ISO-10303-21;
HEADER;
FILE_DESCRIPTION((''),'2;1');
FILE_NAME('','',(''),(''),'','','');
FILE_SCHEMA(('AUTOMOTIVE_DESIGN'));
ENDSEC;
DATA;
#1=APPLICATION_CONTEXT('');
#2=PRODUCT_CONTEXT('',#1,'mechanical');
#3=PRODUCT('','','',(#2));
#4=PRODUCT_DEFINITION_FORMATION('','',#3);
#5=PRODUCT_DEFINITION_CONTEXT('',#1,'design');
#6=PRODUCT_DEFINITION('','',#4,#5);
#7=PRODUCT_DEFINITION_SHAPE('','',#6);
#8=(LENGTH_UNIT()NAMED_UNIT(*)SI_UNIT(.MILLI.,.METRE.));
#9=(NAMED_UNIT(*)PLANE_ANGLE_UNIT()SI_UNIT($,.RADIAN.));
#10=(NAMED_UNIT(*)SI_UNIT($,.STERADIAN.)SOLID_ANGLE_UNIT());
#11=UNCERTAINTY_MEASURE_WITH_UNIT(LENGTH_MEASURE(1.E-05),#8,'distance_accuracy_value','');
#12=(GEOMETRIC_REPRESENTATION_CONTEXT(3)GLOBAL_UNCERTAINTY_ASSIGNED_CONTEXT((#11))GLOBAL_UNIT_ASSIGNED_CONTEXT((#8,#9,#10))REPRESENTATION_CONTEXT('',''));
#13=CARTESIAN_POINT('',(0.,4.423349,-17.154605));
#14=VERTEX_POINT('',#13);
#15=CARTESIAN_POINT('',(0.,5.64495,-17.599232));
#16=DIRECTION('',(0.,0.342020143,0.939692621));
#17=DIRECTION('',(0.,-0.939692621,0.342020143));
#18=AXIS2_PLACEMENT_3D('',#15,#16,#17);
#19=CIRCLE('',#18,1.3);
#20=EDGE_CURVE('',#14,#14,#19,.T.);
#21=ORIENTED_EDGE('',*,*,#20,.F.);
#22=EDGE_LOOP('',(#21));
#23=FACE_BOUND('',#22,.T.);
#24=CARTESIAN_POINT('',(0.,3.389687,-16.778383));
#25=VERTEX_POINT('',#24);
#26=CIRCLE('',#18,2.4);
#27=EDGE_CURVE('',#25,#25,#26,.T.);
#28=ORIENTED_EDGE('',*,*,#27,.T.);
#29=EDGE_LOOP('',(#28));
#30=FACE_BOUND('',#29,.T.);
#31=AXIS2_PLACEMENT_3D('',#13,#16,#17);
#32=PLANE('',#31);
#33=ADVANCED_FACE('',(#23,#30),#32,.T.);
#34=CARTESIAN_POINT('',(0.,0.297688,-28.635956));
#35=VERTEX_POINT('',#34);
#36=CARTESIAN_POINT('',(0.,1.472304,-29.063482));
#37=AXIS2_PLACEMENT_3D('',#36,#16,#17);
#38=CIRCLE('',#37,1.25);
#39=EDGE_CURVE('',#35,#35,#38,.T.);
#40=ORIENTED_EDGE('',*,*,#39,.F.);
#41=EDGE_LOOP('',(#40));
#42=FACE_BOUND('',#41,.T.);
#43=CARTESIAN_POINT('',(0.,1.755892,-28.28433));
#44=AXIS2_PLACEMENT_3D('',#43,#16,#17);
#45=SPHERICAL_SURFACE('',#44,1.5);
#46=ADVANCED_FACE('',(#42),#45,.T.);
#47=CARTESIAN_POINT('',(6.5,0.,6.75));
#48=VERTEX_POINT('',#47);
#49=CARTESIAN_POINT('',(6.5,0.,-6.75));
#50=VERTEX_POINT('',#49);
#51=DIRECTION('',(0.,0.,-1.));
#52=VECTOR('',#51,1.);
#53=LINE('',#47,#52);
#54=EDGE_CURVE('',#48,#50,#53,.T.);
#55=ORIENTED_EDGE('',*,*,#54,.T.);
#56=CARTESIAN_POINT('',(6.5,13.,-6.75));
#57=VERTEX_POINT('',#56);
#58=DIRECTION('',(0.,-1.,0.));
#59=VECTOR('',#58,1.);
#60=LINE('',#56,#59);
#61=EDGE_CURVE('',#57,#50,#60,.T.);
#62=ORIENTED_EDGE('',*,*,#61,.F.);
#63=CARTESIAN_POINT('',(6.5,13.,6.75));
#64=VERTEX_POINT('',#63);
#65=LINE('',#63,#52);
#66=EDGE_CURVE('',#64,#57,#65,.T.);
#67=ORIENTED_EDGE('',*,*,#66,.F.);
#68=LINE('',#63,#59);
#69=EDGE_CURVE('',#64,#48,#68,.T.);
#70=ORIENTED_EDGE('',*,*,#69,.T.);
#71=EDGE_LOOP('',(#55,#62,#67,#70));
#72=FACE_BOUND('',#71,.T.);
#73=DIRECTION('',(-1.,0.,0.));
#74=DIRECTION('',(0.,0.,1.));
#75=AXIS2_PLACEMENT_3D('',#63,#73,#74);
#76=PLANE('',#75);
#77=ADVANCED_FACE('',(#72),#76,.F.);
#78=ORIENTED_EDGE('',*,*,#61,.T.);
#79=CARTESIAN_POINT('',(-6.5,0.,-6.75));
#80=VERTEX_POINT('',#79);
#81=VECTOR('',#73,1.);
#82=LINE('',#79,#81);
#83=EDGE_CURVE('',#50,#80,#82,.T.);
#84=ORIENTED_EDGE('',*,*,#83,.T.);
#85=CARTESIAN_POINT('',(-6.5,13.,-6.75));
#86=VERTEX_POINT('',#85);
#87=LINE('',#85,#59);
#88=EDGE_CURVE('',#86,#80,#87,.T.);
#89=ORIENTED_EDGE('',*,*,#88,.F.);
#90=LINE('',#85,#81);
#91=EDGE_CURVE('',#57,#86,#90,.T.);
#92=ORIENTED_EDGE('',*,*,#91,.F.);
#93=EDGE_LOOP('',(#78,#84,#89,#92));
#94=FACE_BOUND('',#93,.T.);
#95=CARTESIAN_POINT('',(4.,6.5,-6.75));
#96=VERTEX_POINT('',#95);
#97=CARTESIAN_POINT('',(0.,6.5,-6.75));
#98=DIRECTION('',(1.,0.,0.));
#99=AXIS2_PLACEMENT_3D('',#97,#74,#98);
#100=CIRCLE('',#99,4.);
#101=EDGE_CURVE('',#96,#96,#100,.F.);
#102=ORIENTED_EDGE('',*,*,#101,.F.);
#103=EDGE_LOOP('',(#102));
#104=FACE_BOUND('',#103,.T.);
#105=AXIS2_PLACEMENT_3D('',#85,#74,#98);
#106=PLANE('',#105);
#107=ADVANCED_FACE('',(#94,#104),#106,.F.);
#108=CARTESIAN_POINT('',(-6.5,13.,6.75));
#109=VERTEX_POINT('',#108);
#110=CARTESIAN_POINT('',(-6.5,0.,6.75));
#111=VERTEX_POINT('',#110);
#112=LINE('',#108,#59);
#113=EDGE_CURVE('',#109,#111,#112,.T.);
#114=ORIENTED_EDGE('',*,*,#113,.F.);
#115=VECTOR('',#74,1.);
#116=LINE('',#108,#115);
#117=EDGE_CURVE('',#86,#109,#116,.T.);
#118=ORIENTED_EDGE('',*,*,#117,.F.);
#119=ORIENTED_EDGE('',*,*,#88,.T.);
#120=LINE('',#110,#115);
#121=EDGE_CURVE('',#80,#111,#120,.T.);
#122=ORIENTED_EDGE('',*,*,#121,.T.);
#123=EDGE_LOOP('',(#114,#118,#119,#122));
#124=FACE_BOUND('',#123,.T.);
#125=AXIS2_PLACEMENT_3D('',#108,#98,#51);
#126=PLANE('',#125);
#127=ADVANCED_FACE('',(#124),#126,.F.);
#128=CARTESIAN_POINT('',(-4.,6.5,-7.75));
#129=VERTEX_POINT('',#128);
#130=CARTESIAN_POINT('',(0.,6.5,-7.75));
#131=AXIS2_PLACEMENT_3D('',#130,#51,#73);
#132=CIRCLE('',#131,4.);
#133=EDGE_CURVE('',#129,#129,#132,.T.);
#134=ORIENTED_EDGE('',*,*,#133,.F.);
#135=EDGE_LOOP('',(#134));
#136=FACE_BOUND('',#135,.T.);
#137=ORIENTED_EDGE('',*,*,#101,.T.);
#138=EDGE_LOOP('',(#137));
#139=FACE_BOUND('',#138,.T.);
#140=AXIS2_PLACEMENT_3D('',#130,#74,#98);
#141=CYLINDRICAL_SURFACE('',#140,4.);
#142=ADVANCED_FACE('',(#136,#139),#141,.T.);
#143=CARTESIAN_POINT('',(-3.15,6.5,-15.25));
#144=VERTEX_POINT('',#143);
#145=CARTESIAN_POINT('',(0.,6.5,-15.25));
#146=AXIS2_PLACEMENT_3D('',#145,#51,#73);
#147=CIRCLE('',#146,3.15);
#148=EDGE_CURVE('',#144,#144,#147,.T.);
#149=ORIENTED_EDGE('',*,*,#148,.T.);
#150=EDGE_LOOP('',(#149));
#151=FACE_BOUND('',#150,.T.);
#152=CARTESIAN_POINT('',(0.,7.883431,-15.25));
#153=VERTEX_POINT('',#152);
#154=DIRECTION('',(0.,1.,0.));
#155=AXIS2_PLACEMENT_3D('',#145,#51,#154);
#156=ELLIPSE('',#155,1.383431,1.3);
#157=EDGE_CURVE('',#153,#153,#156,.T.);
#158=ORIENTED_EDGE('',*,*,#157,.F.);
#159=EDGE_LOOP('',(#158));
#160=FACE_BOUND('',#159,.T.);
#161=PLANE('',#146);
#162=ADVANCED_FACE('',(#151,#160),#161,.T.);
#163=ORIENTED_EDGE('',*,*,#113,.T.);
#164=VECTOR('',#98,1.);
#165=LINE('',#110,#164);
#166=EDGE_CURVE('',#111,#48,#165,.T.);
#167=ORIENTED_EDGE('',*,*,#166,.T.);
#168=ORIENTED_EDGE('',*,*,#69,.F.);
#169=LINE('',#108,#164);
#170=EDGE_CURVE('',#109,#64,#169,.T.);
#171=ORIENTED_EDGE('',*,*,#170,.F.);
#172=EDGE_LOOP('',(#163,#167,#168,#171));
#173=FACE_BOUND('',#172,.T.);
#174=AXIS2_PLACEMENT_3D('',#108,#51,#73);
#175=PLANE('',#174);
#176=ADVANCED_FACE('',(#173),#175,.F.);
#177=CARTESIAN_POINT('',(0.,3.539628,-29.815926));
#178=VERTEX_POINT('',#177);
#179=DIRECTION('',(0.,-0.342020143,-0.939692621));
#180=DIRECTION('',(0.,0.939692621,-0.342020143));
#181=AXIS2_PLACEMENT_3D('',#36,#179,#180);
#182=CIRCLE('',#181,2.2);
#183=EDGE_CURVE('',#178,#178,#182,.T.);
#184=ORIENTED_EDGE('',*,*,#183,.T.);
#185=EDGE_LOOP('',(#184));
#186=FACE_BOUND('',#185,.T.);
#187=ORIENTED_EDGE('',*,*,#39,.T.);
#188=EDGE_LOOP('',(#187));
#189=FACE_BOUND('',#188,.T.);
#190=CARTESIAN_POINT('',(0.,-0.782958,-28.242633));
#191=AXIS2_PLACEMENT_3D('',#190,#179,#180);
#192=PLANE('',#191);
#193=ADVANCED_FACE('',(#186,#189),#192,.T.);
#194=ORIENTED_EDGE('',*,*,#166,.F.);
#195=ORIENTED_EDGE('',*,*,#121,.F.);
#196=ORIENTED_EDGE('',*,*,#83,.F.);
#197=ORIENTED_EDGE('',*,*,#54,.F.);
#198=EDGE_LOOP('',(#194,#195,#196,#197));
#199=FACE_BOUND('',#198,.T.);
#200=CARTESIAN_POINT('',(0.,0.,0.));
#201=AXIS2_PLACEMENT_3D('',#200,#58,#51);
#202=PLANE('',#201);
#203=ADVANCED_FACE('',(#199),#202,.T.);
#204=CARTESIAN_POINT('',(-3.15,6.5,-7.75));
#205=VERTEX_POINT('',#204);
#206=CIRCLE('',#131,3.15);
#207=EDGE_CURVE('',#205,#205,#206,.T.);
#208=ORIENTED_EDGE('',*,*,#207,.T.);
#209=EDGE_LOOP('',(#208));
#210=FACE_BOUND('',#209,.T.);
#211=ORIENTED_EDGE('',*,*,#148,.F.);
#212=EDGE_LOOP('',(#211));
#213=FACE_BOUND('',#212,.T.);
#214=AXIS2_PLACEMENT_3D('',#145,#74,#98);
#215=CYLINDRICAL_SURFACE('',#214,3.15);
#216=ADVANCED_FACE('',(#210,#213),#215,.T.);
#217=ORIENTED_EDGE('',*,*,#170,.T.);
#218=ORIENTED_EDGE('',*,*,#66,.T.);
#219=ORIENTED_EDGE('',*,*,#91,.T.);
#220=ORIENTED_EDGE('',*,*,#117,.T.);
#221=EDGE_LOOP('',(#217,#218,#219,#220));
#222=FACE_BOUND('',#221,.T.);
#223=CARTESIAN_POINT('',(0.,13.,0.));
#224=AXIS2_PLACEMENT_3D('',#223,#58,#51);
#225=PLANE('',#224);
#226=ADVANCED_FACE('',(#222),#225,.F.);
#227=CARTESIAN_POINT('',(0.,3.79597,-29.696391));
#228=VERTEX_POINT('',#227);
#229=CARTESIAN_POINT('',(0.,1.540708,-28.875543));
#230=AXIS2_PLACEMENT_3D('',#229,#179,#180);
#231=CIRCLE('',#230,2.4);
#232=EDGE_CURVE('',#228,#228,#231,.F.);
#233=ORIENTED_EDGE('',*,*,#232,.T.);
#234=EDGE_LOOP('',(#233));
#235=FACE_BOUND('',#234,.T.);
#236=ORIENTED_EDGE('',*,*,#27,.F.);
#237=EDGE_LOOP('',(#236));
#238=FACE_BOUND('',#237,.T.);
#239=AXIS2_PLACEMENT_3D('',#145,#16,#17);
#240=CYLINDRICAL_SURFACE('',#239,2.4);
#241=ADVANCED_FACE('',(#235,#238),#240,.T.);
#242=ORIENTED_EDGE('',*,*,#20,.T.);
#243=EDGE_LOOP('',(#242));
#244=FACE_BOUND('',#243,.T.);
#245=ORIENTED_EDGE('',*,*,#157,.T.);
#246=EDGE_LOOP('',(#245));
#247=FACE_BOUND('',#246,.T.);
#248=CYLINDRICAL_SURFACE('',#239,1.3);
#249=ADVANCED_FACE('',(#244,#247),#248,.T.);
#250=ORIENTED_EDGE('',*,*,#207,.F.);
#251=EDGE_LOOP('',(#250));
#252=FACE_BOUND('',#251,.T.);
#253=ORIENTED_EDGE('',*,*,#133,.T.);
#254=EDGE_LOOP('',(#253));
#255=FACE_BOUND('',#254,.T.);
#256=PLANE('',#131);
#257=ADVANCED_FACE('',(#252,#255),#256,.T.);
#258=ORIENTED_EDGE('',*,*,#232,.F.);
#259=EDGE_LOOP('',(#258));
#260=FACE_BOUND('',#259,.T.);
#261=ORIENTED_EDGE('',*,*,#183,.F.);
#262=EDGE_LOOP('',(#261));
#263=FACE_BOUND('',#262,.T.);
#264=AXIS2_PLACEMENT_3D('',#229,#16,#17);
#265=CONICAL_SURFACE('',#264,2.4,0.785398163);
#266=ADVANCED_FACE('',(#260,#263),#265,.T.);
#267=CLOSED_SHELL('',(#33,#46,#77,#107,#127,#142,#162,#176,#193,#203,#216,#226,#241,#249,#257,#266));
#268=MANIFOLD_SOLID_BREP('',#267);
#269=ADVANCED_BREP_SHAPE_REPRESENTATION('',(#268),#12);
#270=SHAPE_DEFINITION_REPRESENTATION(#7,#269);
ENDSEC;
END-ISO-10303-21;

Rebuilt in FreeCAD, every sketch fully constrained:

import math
import FreeCAD as App
import Part
import Sketcher

V = App.Vector
Q = App.Units.Quantity


def edges_at(feature, points):
    """Names of the edges that pass closest to the given points."""
    edges = feature.Shape.Edges
    near = lambda p: min(range(len(edges)), key=lambda i: edges[i].distToShape(Part.Vertex(*p))[0])
    return sorted({f"Edge{near(p) + 1}" for p in points})

doc = App.newDocument("Part")
body = doc.addObject("PartDesign::Body", "Body")

# Sketch on XZ plane
sketch1 = body.newObject("Sketcher::SketchObject", "Sketch")
sketch1.AttachmentSupport = (doc.getObject("XZ_Plane"), [""])
sketch1.MapMode = "FlatFace"
sketch1.addGeometry(Part.LineSegment(V(-6, -7, 0), V(-6, 7, 0)), False)
sketch1.addGeometry(Part.LineSegment(V(-6, 7, 0), V(6, 7, 0)), False)
sketch1.addGeometry(Part.LineSegment(V(6, 7, 0), V(6, -7, 0)), False)
sketch1.addGeometry(Part.LineSegment(V(6, -7, 0), V(-6, -7, 0)), False)
sketch1.addConstraint(Sketcher.Constraint("Coincident", 0, 2, 1, 1))
sketch1.addConstraint(Sketcher.Constraint("Coincident", 1, 2, 2, 1))
sketch1.addConstraint(Sketcher.Constraint("Coincident", 2, 2, 3, 1))
sketch1.addConstraint(Sketcher.Constraint("Coincident", 3, 2, 0, 1))
sketch1.addConstraint(Sketcher.Constraint("Vertical", 0))
sketch1.addConstraint(Sketcher.Constraint("Horizontal", 1))
sketch1.addConstraint(Sketcher.Constraint("Vertical", 2))
sketch1.addConstraint(Sketcher.Constraint("Horizontal", 3))
sketch1.addConstraint(Sketcher.Constraint("Symmetric", 0, 2, 2, 2, -1, 1))
sketch1.addConstraint(Sketcher.Constraint("DistanceX", 1, 1, 1, 2, 13.0))
sketch1.addConstraint(Sketcher.Constraint("DistanceY", 0, 1, 0, 2, 13.5))
pad1 = body.newObject("PartDesign::Pad", "Pad")
pad1.Profile = sketch1
pad1.Length = 13
pad1.Reversed = True

# Sketch on XY plane
sketch2 = body.newObject("Sketcher::SketchObject", "Sketch001")
sketch2.AttachmentSupport = (doc.getObject("XY_Plane"), [""])
sketch2.MapMode = "FlatFace"
sketch2.AttachmentOffset = App.Placement(V(0, 0, -6.75), App.Rotation())
sketch2.addGeometry(Part.Circle(V(0, 6.5, 0), V(0, 0, 1), 3.1), False)
sketch2.addConstraint(Sketcher.Constraint("PointOnObject", 0, 3, -2))
sketch2.addConstraint(Sketcher.Constraint("Diameter", 0, 6.3))
sketch2.addConstraint(Sketcher.Constraint("DistanceY", -1, 1, 0, 3, 6.5))
pad2 = body.newObject("PartDesign::Pad", "Pad001")
pad2.Profile = sketch2
pad2.Length = 8.5
pad2.Reversed = True

# Sketch on XY plane
sketch3 = body.newObject("Sketcher::SketchObject", "Sketch002")
sketch3.AttachmentSupport = (doc.getObject("XY_Plane"), [""])
sketch3.MapMode = "FlatFace"
sketch3.AttachmentOffset = App.Placement(V(0, 0, -6.75), App.Rotation())
sketch3.addGeometry(Part.Circle(V(0, 6.5, 0), V(0, 0, 1), 4), False)
sketch3.addConstraint(Sketcher.Constraint("PointOnObject", 0, 3, -2))
sketch3.addConstraint(Sketcher.Constraint("Diameter", 0, 8.0))
sketch3.addConstraint(Sketcher.Constraint("DistanceY", -1, 1, 0, 3, 6.5))
pad3 = body.newObject("PartDesign::Pad", "Pad002")
pad3.Profile = sketch3
pad3.Length = 1
pad3.Reversed = True

# Sketch on YZ plane
sketch4 = body.newObject("Sketcher::SketchObject", "Sketch003")
sketch4.AttachmentSupport = (doc.getObject("YZ_Plane"), [""])
sketch4.MapMode = "FlatFace"
sketch4.addGeometry(Part.LineSegment(V(6.8, -14.3, 0), V(5.6, -13.9, 0)), False)
sketch4.addGeometry(Part.LineSegment(V(5.6, -13.9, 0), V(4.4, -17.2, 0)), False)
sketch4.addGeometry(Part.LineSegment(V(4.4, -17.2, 0), V(3.4, -16.8, 0)), False)
sketch4.addGeometry(Part.LineSegment(V(3.4, -16.8, 0), V(-0.8, -28.2, 0)), False)
sketch4.addGeometry(Part.LineSegment(V(-0.8, -28.2, 0), V(0.3, -28.6, 0)), False)
sketch4.addGeometry(Part.ArcOfCircle(Part.Circle(V(1.8, -28.3, 0), V(0, 0, 1), 1.5), math.radians(-166), math.radians(-110)), False)
sketch4.addGeometry(Part.LineSegment(V(1.2, -29.7, 0), V(6.8, -14.3, 0)), False)
sketch4.addGeometry(Part.LineSegment(V(6.8, -14.3, 0), V(1.2, -29.7, 0)), True)  # axis
sketch4.addConstraint(Sketcher.Constraint("Coincident", 0, 2, 1, 1))
sketch4.addConstraint(Sketcher.Constraint("Coincident", 1, 2, 2, 1))
sketch4.addConstraint(Sketcher.Constraint("Coincident", 2, 2, 3, 1))
sketch4.addConstraint(Sketcher.Constraint("Coincident", 3, 2, 4, 1))
sketch4.addConstraint(Sketcher.Constraint("Coincident", 4, 2, 5, 1))
sketch4.addConstraint(Sketcher.Constraint("Coincident", 5, 2, 6, 1))
sketch4.addConstraint(Sketcher.Constraint("Coincident", 6, 2, 0, 1))
sketch4.addConstraint(Sketcher.Constraint("Coincident", 7, 1, 6, 2))
sketch4.addConstraint(Sketcher.Constraint("Coincident", 7, 2, 5, 2))
sketch4.addConstraint(Sketcher.Constraint("Perpendicular", 0, 1))
sketch4.addConstraint(Sketcher.Constraint("Perpendicular", 1, 2))
sketch4.addConstraint(Sketcher.Constraint("Perpendicular", 2, 3))
sketch4.addConstraint(Sketcher.Constraint("Perpendicular", 3, 4))
sketch4.addConstraint(Sketcher.Constraint("Perpendicular", 4, 6))
sketch4.addConstraint(Sketcher.Constraint("Radius", 5, 1.5))
sketch4.addConstraint(Sketcher.Constraint("Angle", 0, Q("160 deg")))
sketch4.addConstraint(Sketcher.Constraint("Distance", 0, 1.3))
sketch4.addConstraint(Sketcher.Constraint("Distance", 1, 3.5))
sketch4.addConstraint(Sketcher.Constraint("Distance", 2, 1.1))
sketch4.addConstraint(Sketcher.Constraint("Distance", 3, 12.2))
sketch4.addConstraint(Sketcher.Constraint("Distance", 4, 1.15))
sketch4.addConstraint(Sketcher.Constraint("DistanceY", 5, 3, -1, 1, 28.28433))
sketch4.addConstraint(Sketcher.Constraint("DistanceX", -1, 1, 0, 2, 5.62042))
sketch4.addConstraint(Sketcher.Constraint("DistanceY", 0, 2, -1, 1, 13.865681))
revolution = body.newObject("PartDesign::Revolution", "Revolution")
revolution.Profile = sketch4
revolution.ReferenceAxis = (sketch4, ["Axis0"])
revolution.Angle = 360
doc.recompute()

chamfer = body.newObject("PartDesign::Chamfer", "Chamfer")
chamfer.Base = (revolution, edges_at(revolution, [(0, 3.728, -29.884)]))
chamfer.Size = 0.2

doc.recompute()
